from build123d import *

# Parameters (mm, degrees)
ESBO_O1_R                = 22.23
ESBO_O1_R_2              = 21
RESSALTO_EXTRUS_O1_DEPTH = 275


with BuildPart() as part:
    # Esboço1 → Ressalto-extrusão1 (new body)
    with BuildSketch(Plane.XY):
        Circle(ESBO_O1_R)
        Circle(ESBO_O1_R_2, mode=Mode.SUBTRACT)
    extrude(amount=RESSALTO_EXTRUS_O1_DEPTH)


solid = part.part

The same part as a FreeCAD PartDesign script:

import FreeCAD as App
import Part
import Sketcher

doc = App.newDocument("Part")
body = doc.addObject("PartDesign::Body", "Body")

sketch1 = doc.addObject("Sketcher::SketchObject", "Sketch")
body.addObject(sketch1)
sketch1.AttachmentSupport = (doc.XY_Plane, [""])
sketch1.MapMode = "FlatFace"
sketch1.addGeometry(Part.Circle(App.Vector(0, 0, 0), App.Vector(0, 0, 1), 22), False)
sketch1.addGeometry(Part.Circle(App.Vector(0, 0, 0), App.Vector(0, 0, 1), 21), False)
sketch1.addConstraint(Sketcher.Constraint("Coincident", 0, 3, -1, 1))
sketch1.addConstraint(Sketcher.Constraint("Coincident", 1, 3, -1, 1))
sketch1.addConstraint(Sketcher.Constraint("Diameter", 1, 42.0))
sketch1.addConstraint(Sketcher.Constraint("Diameter", 0, 44.46))
pad1 = doc.addObject("PartDesign::Pad", "Pad")
body.addObject(pad1)
pad1.Profile = sketch1
pad1.Length = 275

doc.recompute()
